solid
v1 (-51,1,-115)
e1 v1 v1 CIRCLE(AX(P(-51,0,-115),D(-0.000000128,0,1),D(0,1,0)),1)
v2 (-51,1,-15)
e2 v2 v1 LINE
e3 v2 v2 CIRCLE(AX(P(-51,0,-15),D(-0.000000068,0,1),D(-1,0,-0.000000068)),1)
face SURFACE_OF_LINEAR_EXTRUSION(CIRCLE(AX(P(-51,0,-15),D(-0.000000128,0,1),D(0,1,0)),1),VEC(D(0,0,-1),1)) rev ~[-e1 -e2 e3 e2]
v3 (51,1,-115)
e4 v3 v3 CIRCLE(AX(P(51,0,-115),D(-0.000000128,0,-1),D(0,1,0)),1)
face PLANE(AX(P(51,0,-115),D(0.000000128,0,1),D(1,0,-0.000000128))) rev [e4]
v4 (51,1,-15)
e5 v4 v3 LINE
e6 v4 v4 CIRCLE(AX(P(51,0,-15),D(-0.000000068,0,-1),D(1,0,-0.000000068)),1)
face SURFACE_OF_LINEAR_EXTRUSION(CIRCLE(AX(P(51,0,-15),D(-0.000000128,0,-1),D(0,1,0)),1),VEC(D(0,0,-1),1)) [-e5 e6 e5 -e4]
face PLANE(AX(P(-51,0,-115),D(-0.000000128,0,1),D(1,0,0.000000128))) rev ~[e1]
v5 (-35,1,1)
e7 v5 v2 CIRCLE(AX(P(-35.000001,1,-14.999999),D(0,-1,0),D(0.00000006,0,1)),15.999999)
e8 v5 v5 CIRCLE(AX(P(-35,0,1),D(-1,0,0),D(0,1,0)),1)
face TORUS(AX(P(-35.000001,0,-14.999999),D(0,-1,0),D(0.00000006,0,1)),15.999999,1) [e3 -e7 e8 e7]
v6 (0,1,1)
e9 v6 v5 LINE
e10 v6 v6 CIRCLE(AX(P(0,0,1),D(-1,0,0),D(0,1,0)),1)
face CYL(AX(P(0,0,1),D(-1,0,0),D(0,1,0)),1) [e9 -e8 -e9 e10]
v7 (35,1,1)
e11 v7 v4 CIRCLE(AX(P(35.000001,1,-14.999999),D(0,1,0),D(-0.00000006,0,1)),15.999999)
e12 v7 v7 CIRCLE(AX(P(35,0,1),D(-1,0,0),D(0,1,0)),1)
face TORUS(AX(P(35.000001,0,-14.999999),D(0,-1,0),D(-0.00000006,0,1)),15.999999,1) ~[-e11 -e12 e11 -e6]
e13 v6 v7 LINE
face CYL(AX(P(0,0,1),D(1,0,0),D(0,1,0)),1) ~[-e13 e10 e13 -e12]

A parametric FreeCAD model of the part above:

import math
import FreeCAD as App
import Part
import Sketcher

V = App.Vector

doc = App.newDocument("Part")
body = doc.addObject("PartDesign::Body", "Body")

sketch1 = doc.addObject("Sketcher::SketchObject", "Sketch")
body.addObject(sketch1)
sketch1.AttachmentSupport = (doc.YZ_Plane, [""])
sketch1.MapMode = "FlatFace"
sketch1.addGeometry(Part.Circle(V(0, 1, 0), V(0, 0, 1), 1), False)
sketch1.addConstraint(Sketcher.Constraint("PointOnObject", 0, 3, -2))
sketch1.addConstraint(Sketcher.Constraint("Diameter", 0, 2.0))
sketch1.addConstraint(Sketcher.Constraint("DistanceY", -1, 1, 0, 3, 1.0))

sketch2 = doc.addObject("Sketcher::SketchObject", "Sketch001")
body.addObject(sketch2)
sketch2.AttachmentSupport = (doc.XZ_Plane, [""])
sketch2.MapMode = "FlatFace"
sketch2.addGeometry(Part.LineSegment(V(0, 0, 0), V(-35, 0, 0)), False)
sketch2.addGeometry(Part.ArcOfCircle(Part.Circle(V(-35, -15, 0), V(0, 0, 1), 15), math.radians(90), math.radians(180)), False)
sketch2.addGeometry(Part.LineSegment(V(-50, -15, 0), V(-50, -115, 0)), False)
sketch2.addConstraint(Sketcher.Constraint("Tangent", 0, 2, 1, 1))
sketch2.addConstraint(Sketcher.Constraint("Tangent", 1, 2, 2, 1))
sketch2.addConstraint(Sketcher.Constraint("Horizontal", 0))
sketch2.addConstraint(Sketcher.Constraint("Vertical", 2))
sketch2.addConstraint(Sketcher.Constraint("Coincident", 0, 1, -1, 1))
sketch2.addConstraint(Sketcher.Constraint("Radius", 1, 14.999999))
sketch2.addConstraint(Sketcher.Constraint("DistanceX", 0, 2, 0, 1, 35.0))
sketch2.addConstraint(Sketcher.Constraint("DistanceY", 2, 2, 2, 1, 100.0))
doc.recompute()

additivepipe = doc.addObject("PartDesign::AdditivePipe", "AdditivePipe")
body.addObject(additivepipe)
additivepipe.Profile = sketch1
additivepipe.Spine = (sketch2, ["Edge1", "Edge2", "Edge3"])
body2 = doc.addObject("PartDesign::Body", "Body001")
doc.recompute()

body2.BaseFeature = body
doc.recompute()

mirroring = doc.addObject("Part::Mirroring", "Mirroring")
mirroring.Source = body
mirroring.Base = V(0, 0, 0)
mirroring.Normal = V(1, 0, 0)
body3 = doc.addObject("PartDesign::Body", "Body002")
body3.BaseFeature = mirroring
boolean = doc.addObject("PartDesign::Boolean", "Boolean")
body2.addObject(boolean)
boolean.Type = "Fuse"
boolean.addObjects([body3])
doc.recompute()
mirroring.Visibility = False

doc.recompute()
